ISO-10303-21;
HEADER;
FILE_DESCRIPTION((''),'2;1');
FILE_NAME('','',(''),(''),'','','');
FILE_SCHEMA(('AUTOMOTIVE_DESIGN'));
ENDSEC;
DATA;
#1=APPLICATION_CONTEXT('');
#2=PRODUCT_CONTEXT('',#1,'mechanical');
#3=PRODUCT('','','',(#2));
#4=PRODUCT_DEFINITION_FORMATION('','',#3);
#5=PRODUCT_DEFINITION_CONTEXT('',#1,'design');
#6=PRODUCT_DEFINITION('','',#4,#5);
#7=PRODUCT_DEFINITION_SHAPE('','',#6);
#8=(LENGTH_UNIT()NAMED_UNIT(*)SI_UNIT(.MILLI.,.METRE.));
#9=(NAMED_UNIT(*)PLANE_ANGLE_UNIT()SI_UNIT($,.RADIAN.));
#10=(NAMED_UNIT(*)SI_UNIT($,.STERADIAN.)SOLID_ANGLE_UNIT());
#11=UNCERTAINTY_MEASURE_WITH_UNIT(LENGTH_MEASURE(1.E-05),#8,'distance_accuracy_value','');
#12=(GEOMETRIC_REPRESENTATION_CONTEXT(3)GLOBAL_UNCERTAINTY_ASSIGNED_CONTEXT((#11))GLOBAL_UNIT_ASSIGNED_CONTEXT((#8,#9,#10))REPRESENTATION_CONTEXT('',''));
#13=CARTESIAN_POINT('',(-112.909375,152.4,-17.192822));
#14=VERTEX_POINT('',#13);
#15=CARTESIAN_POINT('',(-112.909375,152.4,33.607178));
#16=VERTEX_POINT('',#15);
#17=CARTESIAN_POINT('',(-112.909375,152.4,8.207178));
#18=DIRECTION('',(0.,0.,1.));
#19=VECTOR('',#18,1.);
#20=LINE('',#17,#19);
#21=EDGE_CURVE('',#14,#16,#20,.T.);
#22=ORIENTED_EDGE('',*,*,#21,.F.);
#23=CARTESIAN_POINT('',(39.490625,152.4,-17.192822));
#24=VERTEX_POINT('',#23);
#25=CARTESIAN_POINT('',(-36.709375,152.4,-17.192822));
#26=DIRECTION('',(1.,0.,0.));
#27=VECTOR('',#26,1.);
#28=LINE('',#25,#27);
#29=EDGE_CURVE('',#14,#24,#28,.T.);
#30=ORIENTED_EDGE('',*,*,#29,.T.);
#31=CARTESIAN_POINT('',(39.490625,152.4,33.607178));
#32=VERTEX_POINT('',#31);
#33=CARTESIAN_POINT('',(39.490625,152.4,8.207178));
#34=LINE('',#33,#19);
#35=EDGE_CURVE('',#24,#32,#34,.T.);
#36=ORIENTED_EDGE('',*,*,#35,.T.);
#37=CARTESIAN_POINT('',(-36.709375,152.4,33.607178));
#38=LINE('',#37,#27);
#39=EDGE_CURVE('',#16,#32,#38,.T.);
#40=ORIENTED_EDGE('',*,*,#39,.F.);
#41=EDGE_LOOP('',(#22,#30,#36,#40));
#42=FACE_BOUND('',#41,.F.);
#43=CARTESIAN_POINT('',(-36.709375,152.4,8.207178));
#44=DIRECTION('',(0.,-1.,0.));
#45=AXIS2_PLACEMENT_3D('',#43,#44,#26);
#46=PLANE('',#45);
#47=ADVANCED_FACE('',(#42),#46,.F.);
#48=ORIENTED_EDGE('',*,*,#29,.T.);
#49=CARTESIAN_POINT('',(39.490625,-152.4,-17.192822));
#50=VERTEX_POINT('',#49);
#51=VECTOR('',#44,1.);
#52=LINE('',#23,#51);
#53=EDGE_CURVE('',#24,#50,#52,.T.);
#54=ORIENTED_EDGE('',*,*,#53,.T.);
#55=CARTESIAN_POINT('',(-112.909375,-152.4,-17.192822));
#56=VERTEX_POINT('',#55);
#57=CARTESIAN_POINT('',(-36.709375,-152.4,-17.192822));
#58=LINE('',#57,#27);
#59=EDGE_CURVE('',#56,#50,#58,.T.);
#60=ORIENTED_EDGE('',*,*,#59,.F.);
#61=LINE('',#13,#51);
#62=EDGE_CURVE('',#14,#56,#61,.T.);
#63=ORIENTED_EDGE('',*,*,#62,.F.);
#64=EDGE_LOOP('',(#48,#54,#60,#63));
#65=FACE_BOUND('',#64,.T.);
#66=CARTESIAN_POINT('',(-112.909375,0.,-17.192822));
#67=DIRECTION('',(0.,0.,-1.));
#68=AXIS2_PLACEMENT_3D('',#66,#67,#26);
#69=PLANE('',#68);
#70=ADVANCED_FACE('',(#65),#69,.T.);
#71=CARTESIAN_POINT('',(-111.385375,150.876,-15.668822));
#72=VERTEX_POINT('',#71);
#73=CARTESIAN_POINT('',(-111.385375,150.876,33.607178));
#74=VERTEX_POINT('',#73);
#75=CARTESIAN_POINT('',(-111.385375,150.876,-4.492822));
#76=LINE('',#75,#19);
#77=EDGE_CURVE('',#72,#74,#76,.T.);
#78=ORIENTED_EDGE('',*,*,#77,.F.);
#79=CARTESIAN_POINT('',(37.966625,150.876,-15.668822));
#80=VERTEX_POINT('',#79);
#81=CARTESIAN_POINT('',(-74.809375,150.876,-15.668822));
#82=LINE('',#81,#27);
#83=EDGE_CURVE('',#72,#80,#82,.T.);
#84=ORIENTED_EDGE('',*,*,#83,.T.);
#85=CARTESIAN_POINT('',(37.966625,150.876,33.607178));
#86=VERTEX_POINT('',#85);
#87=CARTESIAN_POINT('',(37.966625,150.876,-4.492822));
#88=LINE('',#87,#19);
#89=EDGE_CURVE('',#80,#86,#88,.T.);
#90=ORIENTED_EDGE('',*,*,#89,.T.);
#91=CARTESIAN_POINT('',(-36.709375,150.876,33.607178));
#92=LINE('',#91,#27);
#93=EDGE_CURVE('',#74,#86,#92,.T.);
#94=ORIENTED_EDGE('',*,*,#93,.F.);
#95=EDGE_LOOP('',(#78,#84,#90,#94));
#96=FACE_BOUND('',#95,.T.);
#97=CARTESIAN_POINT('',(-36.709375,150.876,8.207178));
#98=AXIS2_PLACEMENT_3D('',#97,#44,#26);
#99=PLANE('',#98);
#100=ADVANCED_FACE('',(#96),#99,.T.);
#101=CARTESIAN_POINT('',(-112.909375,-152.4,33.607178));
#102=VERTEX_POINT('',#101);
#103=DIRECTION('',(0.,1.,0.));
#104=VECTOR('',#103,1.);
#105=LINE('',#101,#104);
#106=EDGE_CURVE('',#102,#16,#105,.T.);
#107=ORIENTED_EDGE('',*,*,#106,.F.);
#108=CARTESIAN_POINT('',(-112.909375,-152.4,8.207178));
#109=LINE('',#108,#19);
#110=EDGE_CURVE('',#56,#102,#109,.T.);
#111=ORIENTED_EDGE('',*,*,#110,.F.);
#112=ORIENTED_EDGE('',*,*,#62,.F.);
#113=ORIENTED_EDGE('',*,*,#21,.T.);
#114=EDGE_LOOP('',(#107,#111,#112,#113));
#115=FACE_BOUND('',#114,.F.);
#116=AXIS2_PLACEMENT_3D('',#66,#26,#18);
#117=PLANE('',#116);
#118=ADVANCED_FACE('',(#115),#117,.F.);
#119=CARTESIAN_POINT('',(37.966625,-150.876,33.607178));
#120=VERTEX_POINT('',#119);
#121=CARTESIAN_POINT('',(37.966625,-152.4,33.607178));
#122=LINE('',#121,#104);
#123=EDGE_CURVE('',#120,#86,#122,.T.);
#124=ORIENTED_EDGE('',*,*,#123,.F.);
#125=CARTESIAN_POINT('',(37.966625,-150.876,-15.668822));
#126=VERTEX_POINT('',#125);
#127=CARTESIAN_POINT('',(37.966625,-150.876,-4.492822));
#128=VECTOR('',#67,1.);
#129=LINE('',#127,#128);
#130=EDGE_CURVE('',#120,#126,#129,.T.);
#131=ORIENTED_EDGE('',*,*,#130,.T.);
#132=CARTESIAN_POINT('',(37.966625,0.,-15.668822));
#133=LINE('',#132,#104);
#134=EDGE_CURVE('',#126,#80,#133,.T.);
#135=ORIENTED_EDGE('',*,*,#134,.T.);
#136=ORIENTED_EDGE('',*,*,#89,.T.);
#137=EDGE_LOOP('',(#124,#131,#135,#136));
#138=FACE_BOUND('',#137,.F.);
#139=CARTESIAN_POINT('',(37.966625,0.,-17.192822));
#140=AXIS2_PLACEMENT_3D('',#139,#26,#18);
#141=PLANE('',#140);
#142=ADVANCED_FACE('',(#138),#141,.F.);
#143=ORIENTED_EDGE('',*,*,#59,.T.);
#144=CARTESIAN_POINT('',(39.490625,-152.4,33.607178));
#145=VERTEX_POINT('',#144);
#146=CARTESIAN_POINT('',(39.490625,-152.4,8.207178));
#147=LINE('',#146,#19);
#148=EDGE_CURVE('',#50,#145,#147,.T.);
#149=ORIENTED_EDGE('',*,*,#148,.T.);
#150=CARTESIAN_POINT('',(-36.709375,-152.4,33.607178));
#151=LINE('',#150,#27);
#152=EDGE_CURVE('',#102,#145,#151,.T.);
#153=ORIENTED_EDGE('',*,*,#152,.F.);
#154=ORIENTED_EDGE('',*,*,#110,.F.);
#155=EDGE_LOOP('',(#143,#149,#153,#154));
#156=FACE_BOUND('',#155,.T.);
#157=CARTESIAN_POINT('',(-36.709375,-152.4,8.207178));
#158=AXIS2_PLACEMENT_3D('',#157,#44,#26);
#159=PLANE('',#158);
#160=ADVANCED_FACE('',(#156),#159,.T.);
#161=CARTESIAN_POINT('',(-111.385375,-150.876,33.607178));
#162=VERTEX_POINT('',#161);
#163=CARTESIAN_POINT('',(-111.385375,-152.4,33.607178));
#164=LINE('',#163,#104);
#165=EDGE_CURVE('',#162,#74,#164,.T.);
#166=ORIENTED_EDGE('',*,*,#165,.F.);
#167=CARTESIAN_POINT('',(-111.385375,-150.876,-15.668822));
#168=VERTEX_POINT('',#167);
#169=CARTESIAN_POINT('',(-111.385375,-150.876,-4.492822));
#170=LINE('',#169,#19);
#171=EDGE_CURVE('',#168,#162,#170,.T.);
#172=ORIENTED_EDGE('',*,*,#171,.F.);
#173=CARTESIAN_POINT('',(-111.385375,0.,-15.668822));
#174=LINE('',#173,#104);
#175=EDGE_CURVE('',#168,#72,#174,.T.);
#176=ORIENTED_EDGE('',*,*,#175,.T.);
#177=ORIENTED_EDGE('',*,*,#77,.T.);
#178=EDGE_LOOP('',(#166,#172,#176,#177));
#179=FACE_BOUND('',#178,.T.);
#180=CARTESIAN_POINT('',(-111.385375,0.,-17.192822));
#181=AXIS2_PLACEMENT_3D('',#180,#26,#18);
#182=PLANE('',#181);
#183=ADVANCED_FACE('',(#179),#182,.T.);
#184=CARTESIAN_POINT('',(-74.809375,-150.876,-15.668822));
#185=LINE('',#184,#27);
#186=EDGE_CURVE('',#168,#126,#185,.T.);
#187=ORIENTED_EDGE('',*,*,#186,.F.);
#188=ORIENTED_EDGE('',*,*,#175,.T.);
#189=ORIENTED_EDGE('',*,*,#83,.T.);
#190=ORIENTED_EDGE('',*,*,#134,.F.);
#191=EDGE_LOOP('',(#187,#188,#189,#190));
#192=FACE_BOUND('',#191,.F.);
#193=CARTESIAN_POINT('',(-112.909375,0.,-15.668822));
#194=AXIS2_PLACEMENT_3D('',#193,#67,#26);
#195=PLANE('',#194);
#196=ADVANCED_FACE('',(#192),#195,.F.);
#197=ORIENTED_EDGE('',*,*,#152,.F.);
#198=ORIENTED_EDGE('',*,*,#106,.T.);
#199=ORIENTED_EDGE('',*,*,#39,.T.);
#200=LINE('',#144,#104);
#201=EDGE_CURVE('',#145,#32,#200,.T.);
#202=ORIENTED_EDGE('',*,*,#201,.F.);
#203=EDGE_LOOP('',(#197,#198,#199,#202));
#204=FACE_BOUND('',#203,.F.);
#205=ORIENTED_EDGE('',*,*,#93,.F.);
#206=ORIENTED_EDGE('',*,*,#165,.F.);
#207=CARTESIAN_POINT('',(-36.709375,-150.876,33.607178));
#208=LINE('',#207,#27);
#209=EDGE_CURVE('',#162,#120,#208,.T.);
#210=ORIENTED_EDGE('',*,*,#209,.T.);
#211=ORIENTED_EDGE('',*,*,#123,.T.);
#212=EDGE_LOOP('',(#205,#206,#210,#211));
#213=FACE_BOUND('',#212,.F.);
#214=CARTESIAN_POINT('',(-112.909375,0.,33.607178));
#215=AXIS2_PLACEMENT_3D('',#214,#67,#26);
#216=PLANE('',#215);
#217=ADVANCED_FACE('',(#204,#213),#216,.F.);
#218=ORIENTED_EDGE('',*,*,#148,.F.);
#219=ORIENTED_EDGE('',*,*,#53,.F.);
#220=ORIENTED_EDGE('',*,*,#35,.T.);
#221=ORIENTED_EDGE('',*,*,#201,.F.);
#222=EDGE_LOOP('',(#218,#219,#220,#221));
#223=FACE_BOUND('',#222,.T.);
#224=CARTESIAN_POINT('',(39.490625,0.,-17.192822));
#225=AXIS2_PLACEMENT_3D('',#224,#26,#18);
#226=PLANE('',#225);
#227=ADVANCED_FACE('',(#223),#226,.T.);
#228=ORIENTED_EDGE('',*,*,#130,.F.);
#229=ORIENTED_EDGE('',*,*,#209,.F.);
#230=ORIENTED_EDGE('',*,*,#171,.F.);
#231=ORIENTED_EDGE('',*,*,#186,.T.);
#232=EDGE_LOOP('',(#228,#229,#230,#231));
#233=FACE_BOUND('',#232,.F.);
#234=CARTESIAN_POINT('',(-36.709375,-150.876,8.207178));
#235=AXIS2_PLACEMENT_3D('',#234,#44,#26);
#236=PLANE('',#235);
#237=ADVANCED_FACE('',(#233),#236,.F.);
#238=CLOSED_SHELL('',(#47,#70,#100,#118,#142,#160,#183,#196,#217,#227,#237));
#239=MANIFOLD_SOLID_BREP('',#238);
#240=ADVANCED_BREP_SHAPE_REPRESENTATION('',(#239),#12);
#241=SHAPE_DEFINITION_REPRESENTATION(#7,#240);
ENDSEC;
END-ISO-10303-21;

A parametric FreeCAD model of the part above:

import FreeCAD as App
import Part
import Sketcher
from FreeCAD import Vector
Q = App.Units.Quantity


def faces_at(feature, points):
    """Names of the faces that lie closest to the given points."""
    faces = feature.Shape.Faces
    near = lambda p: min(range(len(faces)), key=lambda i: faces[i].distToShape(Part.Vertex(*p))[0])
    return sorted({f"Face{near(p) + 1}" for p in points})


def add_polygon(sketch, points):
    """Adds a closed chain of lines whose ends are joined by coincident constraints."""
    first, n = sketch.GeometryCount, len(points)
    for a, b in zip(points, points[1:] + points[:1]):
        sketch.addGeometry(Part.LineSegment(App.Vector(*a, 0), App.Vector(*b, 0)), False)
    for i in range(n):
        sketch.addConstraint(Sketcher.Constraint("Coincident", first + i, 2, first + (i + 1) % n, 1))

doc = App.newDocument("Part")
params = doc.addObject("Spreadsheet::Sheet", "Params")
for row, (alias, value) in enumerate([
    ("sketch1_width", "6 in"),
    ("sketch1_height", "2 in"),
    ("pad1_length", "12 in"),
    ("thickness_wall", "0.06 in"),
], start=1):
    params.set(f"A{row}", alias)
    params.set(f"B{row}", "=" + value)
    params.setAlias(f"B{row}", alias)

body = doc.addObject("PartDesign::Body", "Body")

# Sketch on XZ plane
sketch1 = body.newObject("Sketcher::SketchObject", "Sketch")
sketch1.AttachmentSupport = (doc.getObject("XZ_Plane"), [""])
sketch1.MapMode = "FlatFace"
add_polygon(sketch1, [(-113, 34), (-113, -17), (39, -17), (39, 34)])  # lines 0-3
sketch1.addConstraint([
    Sketcher.Constraint("Vertical", 0),
    Sketcher.Constraint("Horizontal", 1),
    Sketcher.Constraint("Vertical", 2),
    Sketcher.Constraint("Horizontal", 3),
    Sketcher.Constraint("DistanceX", 1, 1, 1, 2, Q("6 in")),
    Sketcher.Constraint("DistanceY", 0, 2, 0, 1, Q("2 in")),
    Sketcher.Constraint("DistanceY", 0, 2, -1, 1, 17.192822),
    Sketcher.Constraint("DistanceX", 0, 2, -1, 1, 112.909375),
])
sketch1.setExpression("Constraints[8]", "Params.sketch1_width")
sketch1.setExpression("Constraints[9]", "Params.sketch1_height")
pad1 = body.newObject("PartDesign::Pad", "Pad")
pad1.Profile = sketch1
pad1.setExpression("Length", "Params.pad1_length")
pad1.Midplane = True
doc.recompute()

thickness = body.newObject("PartDesign::Thickness", "Thickness")
thickness.Base = (pad1, faces_at(pad1, [(-36.709, 0, 33.607)]))
thickness.setExpression("Value", "Params.thickness_wall")
thickness.Reversed = True
thickness.Join = "Arc"

doc.recompute()
